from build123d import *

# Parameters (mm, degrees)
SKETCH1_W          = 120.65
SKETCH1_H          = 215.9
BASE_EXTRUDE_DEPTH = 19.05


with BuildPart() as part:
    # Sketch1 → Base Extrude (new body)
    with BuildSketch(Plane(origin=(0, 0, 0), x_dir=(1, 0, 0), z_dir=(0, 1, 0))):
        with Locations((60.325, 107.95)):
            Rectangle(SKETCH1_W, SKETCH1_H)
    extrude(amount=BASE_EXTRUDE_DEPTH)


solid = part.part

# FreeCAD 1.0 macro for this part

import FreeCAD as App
import Part
import Sketcher
from FreeCAD import Vector
Q = App.Units.Quantity

doc = App.newDocument("Part")
body = doc.addObject("PartDesign::Body", "Body")

sketch1 = body.newObject("Sketcher::SketchObject", "Sketch")
sketch1.AttachmentSupport = (doc.getObject("XZ_Plane"), [""])
sketch1.MapMode = "FlatFace"
sketch1.addGeometry(Part.LineSegment(Vector(0, -216, 0), Vector(0, 0, 0)), False)
sketch1.addGeometry(Part.LineSegment(Vector(0, 0, 0), Vector(121, 0, 0)), False)
sketch1.addGeometry(Part.LineSegment(Vector(121, 0, 0), Vector(121, -216, 0)), False)
sketch1.addGeometry(Part.LineSegment(Vector(121, -216, 0), Vector(0, -216, 0)), False)
sketch1.addConstraint(Sketcher.Constraint("Coincident", 0, 2, 1, 1))
sketch1.addConstraint(Sketcher.Constraint("Coincident", 1, 2, 2, 1))
sketch1.addConstraint(Sketcher.Constraint("Coincident", 2, 2, 3, 1))
sketch1.addConstraint(Sketcher.Constraint("Coincident", 3, 2, 0, 1))
sketch1.addConstraint(Sketcher.Constraint("Vertical", 0))
sketch1.addConstraint(Sketcher.Constraint("Horizontal", 1))
sketch1.addConstraint(Sketcher.Constraint("Vertical", 2))
sketch1.addConstraint(Sketcher.Constraint("Horizontal", 3))
sketch1.addConstraint(Sketcher.Constraint("Coincident", 0, 2, -1, 1))
sketch1.addConstraint(Sketcher.Constraint("DistanceY", 0, 1, 0, 2, Q("8.5 in")))
sketch1.addConstraint(Sketcher.Constraint("DistanceX", 1, 1, 1, 2, Q("4.75 in")))
pad1 = body.newObject("PartDesign::Pad", "Pad")
pad1.Profile = sketch1
pad1.Length = Q("0.75 in")
pad1.Reversed = True

doc.recompute()
